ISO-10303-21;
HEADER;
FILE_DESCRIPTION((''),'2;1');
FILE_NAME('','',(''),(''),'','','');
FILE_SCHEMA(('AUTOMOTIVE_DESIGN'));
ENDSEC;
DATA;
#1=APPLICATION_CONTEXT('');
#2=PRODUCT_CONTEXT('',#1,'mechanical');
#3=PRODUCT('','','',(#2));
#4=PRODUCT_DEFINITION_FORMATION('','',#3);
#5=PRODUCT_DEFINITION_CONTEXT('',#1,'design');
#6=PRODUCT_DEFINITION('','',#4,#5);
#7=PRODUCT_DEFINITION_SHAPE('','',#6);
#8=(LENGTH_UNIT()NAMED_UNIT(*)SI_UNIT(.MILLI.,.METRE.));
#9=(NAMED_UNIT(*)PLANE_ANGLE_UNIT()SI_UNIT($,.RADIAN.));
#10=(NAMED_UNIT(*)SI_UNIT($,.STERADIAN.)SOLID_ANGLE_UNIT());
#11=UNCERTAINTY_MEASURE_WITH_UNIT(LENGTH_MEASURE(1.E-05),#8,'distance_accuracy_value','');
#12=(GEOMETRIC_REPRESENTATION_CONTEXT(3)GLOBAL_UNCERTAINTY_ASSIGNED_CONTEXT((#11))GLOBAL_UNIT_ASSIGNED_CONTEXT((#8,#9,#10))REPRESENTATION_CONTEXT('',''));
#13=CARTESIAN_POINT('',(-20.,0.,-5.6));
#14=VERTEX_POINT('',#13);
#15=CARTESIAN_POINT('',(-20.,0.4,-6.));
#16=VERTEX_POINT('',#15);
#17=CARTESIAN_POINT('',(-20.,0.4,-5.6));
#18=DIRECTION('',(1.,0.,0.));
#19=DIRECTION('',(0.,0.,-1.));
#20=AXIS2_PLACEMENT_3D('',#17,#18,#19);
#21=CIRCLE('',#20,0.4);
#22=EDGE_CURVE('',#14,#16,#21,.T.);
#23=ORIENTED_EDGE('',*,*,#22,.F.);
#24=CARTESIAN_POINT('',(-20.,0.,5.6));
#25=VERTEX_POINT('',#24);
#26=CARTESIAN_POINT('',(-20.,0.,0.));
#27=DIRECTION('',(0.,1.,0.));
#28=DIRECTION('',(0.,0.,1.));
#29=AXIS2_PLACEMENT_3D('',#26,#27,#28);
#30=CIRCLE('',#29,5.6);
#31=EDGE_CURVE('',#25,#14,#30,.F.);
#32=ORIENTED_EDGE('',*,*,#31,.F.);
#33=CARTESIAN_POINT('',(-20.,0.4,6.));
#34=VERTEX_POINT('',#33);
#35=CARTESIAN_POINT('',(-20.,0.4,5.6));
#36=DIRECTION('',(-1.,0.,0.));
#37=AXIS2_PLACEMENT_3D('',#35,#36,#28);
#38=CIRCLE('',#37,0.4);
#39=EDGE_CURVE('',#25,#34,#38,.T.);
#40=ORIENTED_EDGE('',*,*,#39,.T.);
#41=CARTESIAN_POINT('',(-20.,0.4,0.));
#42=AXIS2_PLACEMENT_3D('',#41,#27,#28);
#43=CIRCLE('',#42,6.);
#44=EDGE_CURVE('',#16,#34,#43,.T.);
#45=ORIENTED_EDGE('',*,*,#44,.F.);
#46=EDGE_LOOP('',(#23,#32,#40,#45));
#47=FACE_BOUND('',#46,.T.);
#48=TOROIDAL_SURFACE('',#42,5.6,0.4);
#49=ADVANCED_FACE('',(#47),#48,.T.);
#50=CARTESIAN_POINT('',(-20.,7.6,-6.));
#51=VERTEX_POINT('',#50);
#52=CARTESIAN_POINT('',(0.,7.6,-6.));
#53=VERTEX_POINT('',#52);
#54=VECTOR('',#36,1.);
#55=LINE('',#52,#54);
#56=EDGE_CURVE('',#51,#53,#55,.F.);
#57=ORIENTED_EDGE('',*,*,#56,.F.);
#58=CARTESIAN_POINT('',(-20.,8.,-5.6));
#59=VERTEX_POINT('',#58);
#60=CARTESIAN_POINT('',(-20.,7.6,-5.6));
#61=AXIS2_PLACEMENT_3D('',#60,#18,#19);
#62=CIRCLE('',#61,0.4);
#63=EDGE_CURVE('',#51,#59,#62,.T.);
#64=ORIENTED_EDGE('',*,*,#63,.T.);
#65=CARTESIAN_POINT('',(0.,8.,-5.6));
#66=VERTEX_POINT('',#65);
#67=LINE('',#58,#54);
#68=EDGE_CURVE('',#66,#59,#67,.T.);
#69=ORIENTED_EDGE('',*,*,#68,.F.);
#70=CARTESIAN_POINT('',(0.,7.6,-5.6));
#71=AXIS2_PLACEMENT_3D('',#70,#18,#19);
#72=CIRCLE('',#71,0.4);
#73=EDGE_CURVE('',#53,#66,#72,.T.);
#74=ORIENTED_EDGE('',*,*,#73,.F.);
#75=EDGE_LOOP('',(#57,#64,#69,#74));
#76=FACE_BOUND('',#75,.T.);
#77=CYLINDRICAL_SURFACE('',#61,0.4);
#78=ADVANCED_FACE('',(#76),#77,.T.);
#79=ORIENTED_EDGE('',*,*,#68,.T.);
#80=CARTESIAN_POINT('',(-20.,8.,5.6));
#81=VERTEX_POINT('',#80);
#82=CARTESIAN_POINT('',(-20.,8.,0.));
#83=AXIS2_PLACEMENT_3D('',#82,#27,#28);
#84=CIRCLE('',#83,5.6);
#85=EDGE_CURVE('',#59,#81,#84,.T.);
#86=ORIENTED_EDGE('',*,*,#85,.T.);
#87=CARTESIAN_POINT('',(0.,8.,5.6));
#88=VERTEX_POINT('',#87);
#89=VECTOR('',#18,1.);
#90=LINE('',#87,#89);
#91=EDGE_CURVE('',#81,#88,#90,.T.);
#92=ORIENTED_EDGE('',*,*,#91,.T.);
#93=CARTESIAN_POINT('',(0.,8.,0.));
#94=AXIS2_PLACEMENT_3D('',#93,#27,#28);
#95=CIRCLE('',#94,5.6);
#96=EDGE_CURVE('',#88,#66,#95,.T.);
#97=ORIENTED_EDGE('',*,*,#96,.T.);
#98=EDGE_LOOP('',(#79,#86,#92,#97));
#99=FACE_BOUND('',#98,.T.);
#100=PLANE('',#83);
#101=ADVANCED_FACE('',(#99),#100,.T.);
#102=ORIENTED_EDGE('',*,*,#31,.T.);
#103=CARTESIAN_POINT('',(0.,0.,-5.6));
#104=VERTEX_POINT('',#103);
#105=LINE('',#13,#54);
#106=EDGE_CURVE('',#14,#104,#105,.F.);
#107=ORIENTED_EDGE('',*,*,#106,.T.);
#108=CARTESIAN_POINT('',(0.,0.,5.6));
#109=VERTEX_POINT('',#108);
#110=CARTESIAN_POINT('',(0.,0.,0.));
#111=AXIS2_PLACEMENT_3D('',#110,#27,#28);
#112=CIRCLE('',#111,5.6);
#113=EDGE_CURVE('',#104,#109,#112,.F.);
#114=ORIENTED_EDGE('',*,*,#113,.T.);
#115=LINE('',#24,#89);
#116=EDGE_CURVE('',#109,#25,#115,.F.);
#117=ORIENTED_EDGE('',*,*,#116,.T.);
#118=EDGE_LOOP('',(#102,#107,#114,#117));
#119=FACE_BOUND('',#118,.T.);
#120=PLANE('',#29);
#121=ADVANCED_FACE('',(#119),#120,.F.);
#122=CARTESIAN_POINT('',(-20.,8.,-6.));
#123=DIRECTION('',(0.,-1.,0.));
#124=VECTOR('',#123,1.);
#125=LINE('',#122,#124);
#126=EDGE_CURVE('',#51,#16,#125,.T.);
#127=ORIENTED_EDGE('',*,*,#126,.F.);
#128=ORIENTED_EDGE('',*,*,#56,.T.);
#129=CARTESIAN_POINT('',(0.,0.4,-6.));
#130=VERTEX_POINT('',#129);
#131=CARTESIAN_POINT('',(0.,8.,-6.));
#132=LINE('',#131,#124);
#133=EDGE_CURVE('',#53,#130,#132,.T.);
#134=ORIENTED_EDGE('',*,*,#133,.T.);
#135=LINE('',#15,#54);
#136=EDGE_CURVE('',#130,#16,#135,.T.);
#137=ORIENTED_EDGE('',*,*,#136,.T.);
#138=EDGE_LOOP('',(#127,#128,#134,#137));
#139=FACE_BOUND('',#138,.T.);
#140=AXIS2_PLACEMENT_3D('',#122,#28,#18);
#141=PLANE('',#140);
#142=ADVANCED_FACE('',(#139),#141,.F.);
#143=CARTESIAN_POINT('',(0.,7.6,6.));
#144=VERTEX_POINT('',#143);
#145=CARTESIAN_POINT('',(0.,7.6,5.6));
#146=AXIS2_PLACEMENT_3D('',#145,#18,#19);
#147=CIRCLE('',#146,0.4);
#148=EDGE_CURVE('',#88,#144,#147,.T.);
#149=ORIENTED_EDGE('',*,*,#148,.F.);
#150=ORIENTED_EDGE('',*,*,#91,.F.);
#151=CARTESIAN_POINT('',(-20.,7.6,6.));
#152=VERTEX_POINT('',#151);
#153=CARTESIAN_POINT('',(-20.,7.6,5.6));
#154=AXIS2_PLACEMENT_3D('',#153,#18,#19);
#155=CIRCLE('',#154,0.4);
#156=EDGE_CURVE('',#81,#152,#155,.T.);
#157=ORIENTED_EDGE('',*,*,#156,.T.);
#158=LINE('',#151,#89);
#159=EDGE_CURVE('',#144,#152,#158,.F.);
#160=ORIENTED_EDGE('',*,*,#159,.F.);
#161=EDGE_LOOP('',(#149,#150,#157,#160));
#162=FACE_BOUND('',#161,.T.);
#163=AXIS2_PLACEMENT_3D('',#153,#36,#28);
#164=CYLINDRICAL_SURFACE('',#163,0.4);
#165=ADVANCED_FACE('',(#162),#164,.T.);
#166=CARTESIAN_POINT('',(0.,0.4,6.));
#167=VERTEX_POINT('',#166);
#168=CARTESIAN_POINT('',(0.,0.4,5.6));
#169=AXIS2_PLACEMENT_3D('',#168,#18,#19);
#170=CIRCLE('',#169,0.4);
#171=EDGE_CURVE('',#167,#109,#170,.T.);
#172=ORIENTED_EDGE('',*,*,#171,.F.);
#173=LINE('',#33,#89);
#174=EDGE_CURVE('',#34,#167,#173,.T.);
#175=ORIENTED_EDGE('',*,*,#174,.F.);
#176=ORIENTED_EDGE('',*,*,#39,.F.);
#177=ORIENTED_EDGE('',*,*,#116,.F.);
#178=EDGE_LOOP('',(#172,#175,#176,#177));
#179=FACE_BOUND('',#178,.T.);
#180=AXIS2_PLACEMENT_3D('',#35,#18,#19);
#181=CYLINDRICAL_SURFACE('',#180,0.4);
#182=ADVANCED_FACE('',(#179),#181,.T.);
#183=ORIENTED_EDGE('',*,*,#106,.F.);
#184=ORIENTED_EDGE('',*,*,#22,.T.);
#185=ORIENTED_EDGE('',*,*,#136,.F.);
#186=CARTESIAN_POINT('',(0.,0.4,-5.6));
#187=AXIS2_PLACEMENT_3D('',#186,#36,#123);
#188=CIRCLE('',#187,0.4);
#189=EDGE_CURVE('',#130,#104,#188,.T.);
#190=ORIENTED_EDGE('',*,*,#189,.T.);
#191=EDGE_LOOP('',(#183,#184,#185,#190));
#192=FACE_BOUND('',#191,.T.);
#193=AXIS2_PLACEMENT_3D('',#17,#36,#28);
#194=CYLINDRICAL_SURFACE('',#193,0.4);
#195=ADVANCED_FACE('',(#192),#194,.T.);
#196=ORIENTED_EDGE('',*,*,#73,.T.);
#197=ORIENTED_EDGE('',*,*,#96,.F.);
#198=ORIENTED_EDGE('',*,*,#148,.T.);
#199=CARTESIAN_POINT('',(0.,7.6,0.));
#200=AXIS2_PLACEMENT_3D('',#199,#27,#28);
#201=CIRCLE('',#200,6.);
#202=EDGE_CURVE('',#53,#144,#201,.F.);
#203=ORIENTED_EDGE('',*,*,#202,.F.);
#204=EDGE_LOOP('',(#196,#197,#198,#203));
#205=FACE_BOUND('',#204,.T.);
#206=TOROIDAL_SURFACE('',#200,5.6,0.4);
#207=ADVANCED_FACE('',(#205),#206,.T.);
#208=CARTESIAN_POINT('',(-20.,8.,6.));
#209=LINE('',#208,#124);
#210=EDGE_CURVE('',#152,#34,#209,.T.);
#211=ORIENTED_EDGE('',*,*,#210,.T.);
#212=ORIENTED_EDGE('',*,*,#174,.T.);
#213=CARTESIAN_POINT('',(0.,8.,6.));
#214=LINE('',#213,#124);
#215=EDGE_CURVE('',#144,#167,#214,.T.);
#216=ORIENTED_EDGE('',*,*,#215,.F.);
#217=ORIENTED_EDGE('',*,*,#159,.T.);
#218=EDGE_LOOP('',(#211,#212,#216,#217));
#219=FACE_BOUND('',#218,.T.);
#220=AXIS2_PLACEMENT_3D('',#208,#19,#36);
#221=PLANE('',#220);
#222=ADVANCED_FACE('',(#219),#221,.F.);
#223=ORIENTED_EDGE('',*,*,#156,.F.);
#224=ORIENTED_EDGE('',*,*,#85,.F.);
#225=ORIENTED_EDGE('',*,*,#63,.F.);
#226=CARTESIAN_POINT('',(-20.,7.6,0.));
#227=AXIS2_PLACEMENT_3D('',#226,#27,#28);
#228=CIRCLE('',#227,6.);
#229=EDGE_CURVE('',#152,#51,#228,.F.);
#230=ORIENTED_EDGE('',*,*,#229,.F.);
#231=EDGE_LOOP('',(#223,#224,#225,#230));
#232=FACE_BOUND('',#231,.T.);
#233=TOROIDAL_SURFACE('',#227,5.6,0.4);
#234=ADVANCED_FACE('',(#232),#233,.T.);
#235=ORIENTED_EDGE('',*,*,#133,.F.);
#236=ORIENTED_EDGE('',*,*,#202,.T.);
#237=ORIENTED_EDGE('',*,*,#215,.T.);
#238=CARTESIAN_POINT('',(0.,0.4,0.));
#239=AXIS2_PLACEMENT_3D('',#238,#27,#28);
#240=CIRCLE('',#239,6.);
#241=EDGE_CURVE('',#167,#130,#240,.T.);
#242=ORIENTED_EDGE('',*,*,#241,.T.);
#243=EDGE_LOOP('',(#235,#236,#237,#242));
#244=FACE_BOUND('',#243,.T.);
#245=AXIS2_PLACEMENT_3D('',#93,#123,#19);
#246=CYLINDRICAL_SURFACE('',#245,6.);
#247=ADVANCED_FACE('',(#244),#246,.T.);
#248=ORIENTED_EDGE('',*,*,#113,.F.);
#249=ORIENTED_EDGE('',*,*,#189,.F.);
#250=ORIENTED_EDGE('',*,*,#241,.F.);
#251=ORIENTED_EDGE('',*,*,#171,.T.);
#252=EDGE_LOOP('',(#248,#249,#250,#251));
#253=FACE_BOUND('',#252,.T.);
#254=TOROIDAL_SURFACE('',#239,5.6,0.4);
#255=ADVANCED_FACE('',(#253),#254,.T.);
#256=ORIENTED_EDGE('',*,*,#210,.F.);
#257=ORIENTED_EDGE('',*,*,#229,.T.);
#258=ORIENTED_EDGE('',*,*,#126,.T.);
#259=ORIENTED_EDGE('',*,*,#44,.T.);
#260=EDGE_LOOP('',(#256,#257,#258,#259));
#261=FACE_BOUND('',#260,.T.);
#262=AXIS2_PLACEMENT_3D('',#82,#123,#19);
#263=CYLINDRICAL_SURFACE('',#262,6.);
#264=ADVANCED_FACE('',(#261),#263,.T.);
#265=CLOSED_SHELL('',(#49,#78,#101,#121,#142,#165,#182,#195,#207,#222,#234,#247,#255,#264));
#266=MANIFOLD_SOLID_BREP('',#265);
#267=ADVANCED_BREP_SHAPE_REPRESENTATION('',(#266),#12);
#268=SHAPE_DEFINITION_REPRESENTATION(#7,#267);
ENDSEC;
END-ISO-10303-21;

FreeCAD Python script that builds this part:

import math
import FreeCAD as App
import Part
import Sketcher
from FreeCAD import Vector


def edges_at(feature, points):
    """Names of the edges that pass closest to the given points."""
    edges = feature.Shape.Edges
    near = lambda p: min(range(len(edges)), key=lambda i: edges[i].distToShape(Part.Vertex(*p))[0])
    return sorted({f"Edge{near(p) + 1}" for p in points})

doc = App.newDocument("Part")
params = doc.addObject("Spreadsheet::Sheet", "Params")
for row, (alias, value) in enumerate([
    ("sketch1_radius", "6 mm"),
    ("sketch1_width", "20 mm"),
    ("pad1_length", "8 mm"),
    ("fillet_radius", "0.4 mm"),
], start=1):
    params.set(f"A{row}", alias)
    params.set(f"B{row}", "=" + value)
    params.setAlias(f"B{row}", alias)

body = doc.addObject("PartDesign::Body", "Body")

sketch1 = body.newObject("Sketcher::SketchObject", "Sketch")
sketch1.AttachmentSupport = (doc.getObject("XZ_Plane"), [""])
sketch1.MapMode = "FlatFace"
sketch1.addGeometry([
    Part.LineSegment(Vector(0, -6, 0), Vector(-20, -6, 0)),
    Part.ArcOfCircle(Part.Circle(Vector(-20, 0, 0), Vector(0, 0, 1), 6), math.radians(90), math.radians(270)),
    Part.LineSegment(Vector(-20, 6, 0), Vector(0, 6, 0)),
    Part.ArcOfCircle(Part.Circle(Vector(0, 0, 0), Vector(0, 0, 1), 6), math.radians(-90), math.radians(90)),
], False)
sketch1.addConstraint([
    Sketcher.Constraint("Tangent", 0, 2, 1, 2),
    Sketcher.Constraint("Tangent", 1, 1, 2, 1),
    Sketcher.Constraint("Tangent", 2, 2, 3, 2),
    Sketcher.Constraint("Tangent", 3, 1, 0, 1),
    Sketcher.Constraint("Horizontal", 0),
    Sketcher.Constraint("Horizontal", 2),
    Sketcher.Constraint("Coincident", 3, 3, -1, 1),
    Sketcher.Constraint("Radius", 1, 6.0),
    Sketcher.Constraint("DistanceX", 0, 2, 0, 1, 20.0),
])
sketch1.setExpression("Constraints[7]", "Params.sketch1_radius")
sketch1.setExpression("Constraints[8]", "Params.sketch1_width")
pad1 = body.newObject("PartDesign::Pad", "Pad")
pad1.Profile = sketch1
pad1.setExpression("Length", "Params.pad1_length")
pad1.Reversed = True
doc.recompute()

fillet = body.newObject("PartDesign::Fillet", "Fillet")
fillet.Base = (pad1, edges_at(pad1, [
    (6, 8, 0),
    (-10, 8, -6),
    (-26, 8, 0),
    (-10, 0, -6),
    (6, 0, 0),
    (-10, 0, 6),
    (-26, 0, 0),
    (-10, 8, 6),
]))
fillet.setExpression("Radius", "Params.fillet_radius")

doc.recompute()
